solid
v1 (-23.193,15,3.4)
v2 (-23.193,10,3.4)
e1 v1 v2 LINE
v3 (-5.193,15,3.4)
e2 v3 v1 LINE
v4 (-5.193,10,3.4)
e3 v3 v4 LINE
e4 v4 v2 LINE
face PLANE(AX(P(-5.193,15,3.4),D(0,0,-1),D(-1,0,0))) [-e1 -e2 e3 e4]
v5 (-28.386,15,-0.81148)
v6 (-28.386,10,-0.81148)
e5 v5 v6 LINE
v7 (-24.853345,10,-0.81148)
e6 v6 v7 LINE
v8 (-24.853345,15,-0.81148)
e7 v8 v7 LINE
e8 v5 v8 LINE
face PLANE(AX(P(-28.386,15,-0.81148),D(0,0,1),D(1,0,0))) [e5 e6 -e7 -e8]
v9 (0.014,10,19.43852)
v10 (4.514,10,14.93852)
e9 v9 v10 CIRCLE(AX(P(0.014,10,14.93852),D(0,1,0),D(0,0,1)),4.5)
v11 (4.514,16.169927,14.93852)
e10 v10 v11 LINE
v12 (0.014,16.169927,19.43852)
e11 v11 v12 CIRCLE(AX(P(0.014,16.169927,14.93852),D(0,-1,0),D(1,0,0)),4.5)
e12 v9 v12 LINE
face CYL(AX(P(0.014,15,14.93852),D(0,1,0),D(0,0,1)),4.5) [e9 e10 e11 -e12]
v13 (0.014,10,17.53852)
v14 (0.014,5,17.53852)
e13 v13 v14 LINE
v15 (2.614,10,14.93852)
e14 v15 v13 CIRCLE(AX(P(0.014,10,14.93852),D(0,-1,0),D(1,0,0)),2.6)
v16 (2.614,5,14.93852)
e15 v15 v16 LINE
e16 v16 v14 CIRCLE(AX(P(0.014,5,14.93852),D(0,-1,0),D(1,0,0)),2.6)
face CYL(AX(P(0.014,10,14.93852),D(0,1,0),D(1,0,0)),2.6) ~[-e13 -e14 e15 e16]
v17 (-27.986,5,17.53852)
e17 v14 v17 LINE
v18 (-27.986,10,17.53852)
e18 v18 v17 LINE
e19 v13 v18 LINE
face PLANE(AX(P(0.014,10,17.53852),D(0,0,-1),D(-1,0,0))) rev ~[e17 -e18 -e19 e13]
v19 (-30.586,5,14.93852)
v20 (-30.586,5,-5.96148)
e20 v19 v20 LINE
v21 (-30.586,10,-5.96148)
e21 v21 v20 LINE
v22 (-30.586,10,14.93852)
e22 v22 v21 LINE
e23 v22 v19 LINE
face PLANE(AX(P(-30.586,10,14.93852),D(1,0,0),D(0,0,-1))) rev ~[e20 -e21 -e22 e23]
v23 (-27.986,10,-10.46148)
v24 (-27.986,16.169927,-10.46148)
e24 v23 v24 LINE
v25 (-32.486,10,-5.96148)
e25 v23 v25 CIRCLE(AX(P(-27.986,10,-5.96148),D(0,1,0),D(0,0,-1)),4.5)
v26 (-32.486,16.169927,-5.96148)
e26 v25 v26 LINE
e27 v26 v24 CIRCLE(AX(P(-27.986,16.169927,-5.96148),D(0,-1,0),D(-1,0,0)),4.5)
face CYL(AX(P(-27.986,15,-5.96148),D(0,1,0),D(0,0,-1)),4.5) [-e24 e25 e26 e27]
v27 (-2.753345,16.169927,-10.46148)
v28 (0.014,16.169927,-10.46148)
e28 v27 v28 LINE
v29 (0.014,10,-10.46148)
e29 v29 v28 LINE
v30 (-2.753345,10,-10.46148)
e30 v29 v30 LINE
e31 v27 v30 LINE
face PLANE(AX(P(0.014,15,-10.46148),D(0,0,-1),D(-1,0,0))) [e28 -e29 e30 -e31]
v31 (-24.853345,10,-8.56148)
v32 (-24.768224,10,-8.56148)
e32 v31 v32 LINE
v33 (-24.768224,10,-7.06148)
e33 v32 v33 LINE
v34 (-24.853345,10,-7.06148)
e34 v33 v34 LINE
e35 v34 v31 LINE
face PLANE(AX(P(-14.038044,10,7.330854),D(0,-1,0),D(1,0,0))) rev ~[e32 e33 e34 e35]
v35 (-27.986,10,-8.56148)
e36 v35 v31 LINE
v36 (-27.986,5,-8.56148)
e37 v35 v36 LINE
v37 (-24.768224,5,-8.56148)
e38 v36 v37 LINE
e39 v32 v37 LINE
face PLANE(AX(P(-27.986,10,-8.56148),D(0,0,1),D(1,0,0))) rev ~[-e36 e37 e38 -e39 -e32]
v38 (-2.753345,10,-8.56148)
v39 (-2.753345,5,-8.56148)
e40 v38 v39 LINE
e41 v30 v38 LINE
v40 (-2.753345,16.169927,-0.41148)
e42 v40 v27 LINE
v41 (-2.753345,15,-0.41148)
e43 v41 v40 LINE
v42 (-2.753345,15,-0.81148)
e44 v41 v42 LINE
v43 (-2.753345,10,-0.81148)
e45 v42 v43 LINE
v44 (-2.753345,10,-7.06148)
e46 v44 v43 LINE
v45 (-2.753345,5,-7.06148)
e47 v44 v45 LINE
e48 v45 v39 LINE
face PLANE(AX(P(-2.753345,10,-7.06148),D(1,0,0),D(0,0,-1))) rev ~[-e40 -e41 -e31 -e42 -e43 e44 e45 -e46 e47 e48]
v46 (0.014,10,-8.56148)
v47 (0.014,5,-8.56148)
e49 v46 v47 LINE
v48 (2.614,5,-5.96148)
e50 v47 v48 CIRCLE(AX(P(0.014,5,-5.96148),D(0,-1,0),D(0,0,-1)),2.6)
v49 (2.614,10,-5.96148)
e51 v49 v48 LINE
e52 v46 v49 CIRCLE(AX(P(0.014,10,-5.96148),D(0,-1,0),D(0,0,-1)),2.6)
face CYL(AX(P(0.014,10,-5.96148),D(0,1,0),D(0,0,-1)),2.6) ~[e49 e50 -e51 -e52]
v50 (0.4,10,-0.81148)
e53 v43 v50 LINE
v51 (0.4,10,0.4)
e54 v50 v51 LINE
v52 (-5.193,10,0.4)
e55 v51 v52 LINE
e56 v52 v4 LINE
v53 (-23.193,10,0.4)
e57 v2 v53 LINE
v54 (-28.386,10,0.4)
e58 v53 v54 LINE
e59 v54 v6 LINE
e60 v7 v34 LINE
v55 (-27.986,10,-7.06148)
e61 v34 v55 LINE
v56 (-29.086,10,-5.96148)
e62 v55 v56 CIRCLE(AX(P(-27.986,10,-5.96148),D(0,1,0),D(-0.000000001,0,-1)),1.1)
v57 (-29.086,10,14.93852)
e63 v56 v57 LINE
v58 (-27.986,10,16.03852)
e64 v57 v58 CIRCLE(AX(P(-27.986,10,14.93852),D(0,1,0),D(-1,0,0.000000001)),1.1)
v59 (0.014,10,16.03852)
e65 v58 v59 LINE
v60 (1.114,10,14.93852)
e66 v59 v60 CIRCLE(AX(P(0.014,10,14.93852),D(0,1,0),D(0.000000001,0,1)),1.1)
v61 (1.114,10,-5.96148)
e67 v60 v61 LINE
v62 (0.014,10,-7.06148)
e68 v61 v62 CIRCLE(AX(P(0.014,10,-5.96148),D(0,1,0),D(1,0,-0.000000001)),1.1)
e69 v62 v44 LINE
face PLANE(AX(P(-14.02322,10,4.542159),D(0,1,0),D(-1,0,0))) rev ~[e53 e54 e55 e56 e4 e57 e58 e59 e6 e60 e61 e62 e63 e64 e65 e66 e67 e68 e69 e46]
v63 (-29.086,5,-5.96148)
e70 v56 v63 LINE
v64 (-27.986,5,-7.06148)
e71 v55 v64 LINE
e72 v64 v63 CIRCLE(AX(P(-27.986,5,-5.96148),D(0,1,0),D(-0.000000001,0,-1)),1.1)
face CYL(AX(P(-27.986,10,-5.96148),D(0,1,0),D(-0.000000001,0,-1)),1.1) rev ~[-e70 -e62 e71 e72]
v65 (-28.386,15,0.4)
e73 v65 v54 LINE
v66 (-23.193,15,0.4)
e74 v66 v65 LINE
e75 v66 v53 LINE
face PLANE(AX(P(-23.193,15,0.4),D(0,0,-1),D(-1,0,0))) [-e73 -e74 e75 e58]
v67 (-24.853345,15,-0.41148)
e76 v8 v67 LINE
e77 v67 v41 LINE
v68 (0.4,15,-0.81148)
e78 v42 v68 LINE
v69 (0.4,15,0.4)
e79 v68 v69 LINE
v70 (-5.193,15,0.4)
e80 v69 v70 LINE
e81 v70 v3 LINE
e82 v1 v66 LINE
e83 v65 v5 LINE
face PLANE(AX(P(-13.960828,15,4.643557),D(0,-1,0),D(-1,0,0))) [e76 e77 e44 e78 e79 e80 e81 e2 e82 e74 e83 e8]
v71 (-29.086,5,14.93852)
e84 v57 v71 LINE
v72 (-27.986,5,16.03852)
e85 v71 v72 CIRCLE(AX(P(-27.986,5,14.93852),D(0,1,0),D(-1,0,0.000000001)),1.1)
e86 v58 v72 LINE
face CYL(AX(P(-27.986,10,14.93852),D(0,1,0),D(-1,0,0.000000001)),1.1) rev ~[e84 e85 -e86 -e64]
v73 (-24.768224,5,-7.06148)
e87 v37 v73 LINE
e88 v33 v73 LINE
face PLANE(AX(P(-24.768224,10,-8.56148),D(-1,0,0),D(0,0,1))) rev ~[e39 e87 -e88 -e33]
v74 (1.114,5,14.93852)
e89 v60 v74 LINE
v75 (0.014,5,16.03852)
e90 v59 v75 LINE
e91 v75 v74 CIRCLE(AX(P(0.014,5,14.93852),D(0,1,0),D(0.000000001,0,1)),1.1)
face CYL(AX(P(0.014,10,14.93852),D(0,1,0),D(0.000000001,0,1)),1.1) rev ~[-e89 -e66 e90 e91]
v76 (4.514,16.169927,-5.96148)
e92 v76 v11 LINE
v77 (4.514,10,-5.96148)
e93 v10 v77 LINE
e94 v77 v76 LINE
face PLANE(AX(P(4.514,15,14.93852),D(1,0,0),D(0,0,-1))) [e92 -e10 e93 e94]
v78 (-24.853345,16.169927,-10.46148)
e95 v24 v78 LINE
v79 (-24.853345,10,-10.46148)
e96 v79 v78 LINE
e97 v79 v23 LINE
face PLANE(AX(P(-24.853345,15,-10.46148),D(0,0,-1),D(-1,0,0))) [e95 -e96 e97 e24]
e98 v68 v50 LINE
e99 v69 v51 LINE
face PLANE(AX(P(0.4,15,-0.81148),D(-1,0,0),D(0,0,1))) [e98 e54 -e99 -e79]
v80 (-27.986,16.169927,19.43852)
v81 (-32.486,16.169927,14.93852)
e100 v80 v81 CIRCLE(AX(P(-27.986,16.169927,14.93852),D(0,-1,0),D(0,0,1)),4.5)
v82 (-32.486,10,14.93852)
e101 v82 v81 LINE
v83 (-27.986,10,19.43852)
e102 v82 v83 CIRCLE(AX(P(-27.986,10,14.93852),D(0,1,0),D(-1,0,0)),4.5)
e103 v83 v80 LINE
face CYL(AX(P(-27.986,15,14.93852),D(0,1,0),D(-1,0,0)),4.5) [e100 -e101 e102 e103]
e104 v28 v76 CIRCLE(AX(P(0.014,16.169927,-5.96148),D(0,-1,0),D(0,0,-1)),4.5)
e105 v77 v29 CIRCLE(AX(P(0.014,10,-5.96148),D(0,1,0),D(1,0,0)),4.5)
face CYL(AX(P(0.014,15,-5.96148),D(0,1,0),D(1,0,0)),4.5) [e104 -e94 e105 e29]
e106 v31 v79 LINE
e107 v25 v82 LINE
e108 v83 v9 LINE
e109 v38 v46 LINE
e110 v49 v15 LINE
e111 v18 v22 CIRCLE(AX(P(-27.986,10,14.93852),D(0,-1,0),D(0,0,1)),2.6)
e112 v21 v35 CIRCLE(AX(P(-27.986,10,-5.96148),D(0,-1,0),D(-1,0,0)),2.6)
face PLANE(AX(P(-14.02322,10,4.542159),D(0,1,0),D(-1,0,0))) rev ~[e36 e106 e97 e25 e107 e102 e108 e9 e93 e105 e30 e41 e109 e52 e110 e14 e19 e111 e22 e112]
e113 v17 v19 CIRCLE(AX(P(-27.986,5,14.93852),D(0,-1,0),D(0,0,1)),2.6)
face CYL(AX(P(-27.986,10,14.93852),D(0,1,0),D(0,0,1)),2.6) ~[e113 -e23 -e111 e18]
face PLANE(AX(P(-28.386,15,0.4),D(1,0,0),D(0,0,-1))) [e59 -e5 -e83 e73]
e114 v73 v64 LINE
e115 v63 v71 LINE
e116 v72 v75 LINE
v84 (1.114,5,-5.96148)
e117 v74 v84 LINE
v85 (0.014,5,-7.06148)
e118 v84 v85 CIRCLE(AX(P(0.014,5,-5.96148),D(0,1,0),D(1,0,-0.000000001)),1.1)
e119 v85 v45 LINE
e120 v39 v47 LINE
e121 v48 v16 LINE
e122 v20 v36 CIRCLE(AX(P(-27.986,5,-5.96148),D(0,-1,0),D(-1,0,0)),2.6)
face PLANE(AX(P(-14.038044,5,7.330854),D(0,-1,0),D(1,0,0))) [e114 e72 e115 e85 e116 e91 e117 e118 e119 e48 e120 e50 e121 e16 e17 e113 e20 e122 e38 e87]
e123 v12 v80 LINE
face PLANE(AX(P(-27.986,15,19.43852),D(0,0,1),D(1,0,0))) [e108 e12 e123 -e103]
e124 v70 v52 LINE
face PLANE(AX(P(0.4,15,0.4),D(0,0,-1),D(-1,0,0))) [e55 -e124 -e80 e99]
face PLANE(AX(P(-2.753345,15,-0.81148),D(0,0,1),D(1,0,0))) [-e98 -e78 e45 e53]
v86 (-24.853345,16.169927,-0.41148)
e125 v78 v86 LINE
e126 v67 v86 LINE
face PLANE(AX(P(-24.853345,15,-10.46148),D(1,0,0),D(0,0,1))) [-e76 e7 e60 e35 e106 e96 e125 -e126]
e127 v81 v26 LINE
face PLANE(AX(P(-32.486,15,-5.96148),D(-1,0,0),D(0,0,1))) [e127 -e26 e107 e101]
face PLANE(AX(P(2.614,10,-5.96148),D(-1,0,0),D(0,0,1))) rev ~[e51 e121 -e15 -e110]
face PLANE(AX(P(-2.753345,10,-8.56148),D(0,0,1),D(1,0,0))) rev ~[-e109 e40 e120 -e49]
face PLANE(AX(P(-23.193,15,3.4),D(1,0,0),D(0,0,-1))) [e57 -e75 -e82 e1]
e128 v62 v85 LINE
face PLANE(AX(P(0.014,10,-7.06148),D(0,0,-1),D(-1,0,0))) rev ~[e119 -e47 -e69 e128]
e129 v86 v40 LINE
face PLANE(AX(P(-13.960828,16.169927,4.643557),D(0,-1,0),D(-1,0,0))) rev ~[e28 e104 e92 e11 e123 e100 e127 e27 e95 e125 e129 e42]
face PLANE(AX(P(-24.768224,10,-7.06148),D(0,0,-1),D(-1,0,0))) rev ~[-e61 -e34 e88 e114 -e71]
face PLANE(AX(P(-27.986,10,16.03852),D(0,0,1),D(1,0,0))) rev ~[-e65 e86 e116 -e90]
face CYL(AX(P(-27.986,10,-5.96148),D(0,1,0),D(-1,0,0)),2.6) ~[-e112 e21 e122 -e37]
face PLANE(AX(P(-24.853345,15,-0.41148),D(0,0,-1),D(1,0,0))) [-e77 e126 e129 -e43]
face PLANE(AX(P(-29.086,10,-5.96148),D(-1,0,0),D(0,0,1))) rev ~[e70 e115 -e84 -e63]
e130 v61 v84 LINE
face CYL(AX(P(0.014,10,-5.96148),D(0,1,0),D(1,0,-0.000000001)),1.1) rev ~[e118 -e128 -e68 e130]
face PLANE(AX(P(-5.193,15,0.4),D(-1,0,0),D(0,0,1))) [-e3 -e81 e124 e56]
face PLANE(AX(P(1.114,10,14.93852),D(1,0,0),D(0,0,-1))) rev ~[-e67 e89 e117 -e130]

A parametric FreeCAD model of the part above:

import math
import FreeCAD as App
import Part
import Sketcher

doc = App.newDocument("Part")
body = doc.addObject("PartDesign::Body", "Body")

sketch1 = body.newObject("Sketcher::SketchObject", "Sketch")
sketch1.AttachmentSupport = (doc.getObject("XZ_Plane"), [""])
sketch1.MapMode = "FlatFace"
sketch1.AttachmentOffset = App.Placement(App.Vector(0, 0, -15), App.Rotation())
sketch1.addGeometry([
    Part.LineSegment(App.Vector(-24.9, -0.4, 0), App.Vector(-24.9, -10.5, 0)),
    Part.LineSegment(App.Vector(-24.9, -10.5, 0), App.Vector(-28, -10.5, 0)),
    Part.ArcOfCircle(Part.Circle(App.Vector(-28, -6, 0), App.Vector(0, 0, 1), 4.5), math.radians(-180), math.radians(-90)),
    Part.LineSegment(App.Vector(-32.5, -6, 0), App.Vector(-32.5, 14.9, 0)),
    Part.ArcOfCircle(Part.Circle(App.Vector(-28, 14.9, 0), App.Vector(0, 0, 1), 4.5), math.radians(90), math.radians(180)),
    Part.LineSegment(App.Vector(-28, 19.4, 0), App.Vector(0, 19.4, 0)),
    Part.ArcOfCircle(Part.Circle(App.Vector(0, 14.9, 0), App.Vector(0, 0, 1), 4.5), math.radians(0), math.radians(90)),
    Part.LineSegment(App.Vector(4.5, 14.9, 0), App.Vector(4.5, -6, 0)),
    Part.ArcOfCircle(Part.Circle(App.Vector(0, -6, 0), App.Vector(0, 0, 1), 4.5), math.radians(-90), math.radians(0)),
    Part.LineSegment(App.Vector(0, -10.5, 0), App.Vector(-2.8, -10.5, 0)),
    Part.LineSegment(App.Vector(-2.8, -10.5, 0), App.Vector(-2.8, -0.4, 0)),
    Part.LineSegment(App.Vector(-2.8, -0.4, 0), App.Vector(-24.9, -0.4, 0)),
], False)
sketch1.addConstraint([
    Sketcher.Constraint("Coincident", 0, 2, 1, 1),
    Sketcher.Constraint("Tangent", 1, 2, 2, 2),
    Sketcher.Constraint("Tangent", 2, 1, 3, 1),
    Sketcher.Constraint("Tangent", 3, 2, 4, 2),
    Sketcher.Constraint("Tangent", 4, 1, 5, 1),
    Sketcher.Constraint("Tangent", 5, 2, 6, 2),
    Sketcher.Constraint("Tangent", 6, 1, 7, 1),
    Sketcher.Constraint("Tangent", 7, 2, 8, 2),
    Sketcher.Constraint("Tangent", 8, 1, 9, 1),
    Sketcher.Constraint("Coincident", 9, 2, 10, 1),
    Sketcher.Constraint("Coincident", 10, 2, 11, 1),
    Sketcher.Constraint("Coincident", 11, 2, 0, 1),
    Sketcher.Constraint("Vertical", 0),
    Sketcher.Constraint("Horizontal", 1),
    Sketcher.Constraint("Vertical", 3),
    Sketcher.Constraint("Horizontal", 5),
    Sketcher.Constraint("Vertical", 7),
    Sketcher.Constraint("Horizontal", 9),
    Sketcher.Constraint("Vertical", 10),
    Sketcher.Constraint("Horizontal", 11),
    Sketcher.Constraint("Equal", 2, 4),
    Sketcher.Constraint("Equal", 4, 6),
    Sketcher.Constraint("Equal", 6, 8),
    Sketcher.Constraint("Horizontal", 2, 3, 8, 3),
    Sketcher.Constraint("Radius", 2, 4.5),
    Sketcher.Constraint("DistanceX", 5, 1, 5, 2, 28.0),
    Sketcher.Constraint("DistanceX", 11, 2, 11, 1, 22.1),
    Sketcher.Constraint("DistanceY", 3, 1, 3, 2, 20.9),
    Sketcher.Constraint("DistanceY", 0, 2, 0, 1, 10.05),
    Sketcher.Constraint("DistanceX", 2, 3, -1, 1, 27.986),
    Sketcher.Constraint("DistanceX", 1, 2, 1, 1, 3.132655),
    Sketcher.Constraint("DistanceY", 2, 3, -1, 1, 5.96148),
])
pad1 = body.newObject("PartDesign::Pad", "Pad")
pad1.Profile = sketch1
pad1.Length = 1.169927
pad1.Reversed = True

sketch2 = body.newObject("Sketcher::SketchObject", "Sketch001")
sketch2.AttachmentSupport = (doc.getObject("XZ_Plane"), [""])
sketch2.MapMode = "FlatFace"
sketch2.AttachmentOffset = App.Placement(App.Vector(0, 0, -15), App.Rotation())
sketch2.addGeometry([
    Part.LineSegment(App.Vector(-28.4, 0.4, 0), App.Vector(-23.2, 0.4, 0)),
    Part.LineSegment(App.Vector(-23.2, 0.4, 0), App.Vector(-23.2, 3.4, 0)),
    Part.LineSegment(App.Vector(-23.2, 3.4, 0), App.Vector(-5.2, 3.4, 0)),
    Part.LineSegment(App.Vector(-5.2, 3.4, 0), App.Vector(-5.2, 0.4, 0)),
    Part.LineSegment(App.Vector(-5.2, 0.4, 0), App.Vector(0.4, 0.4, 0)),
    Part.LineSegment(App.Vector(0.4, 0.4, 0), App.Vector(0.4, -0.8, 0)),
    Part.LineSegment(App.Vector(0.4, -0.8, 0), App.Vector(-2.8, -0.8, 0)),
    Part.LineSegment(App.Vector(-2.8, -0.8, 0), App.Vector(-2.8, -10.5, 0)),
    Part.LineSegment(App.Vector(-2.8, -10.5, 0), App.Vector(0, -10.5, 0)),
    Part.ArcOfCircle(Part.Circle(App.Vector(0, -6, 0), App.Vector(0, 0, 1), 4.5), math.radians(-90), math.radians(0)),
    Part.LineSegment(App.Vector(4.5, -6, 0), App.Vector(4.5, 14.9, 0)),
    Part.ArcOfCircle(Part.Circle(App.Vector(0, 14.9, 0), App.Vector(0, 0, 1), 4.5), math.radians(0), math.radians(90)),
    Part.LineSegment(App.Vector(0, 19.4, 0), App.Vector(-28, 19.4, 0)),
    Part.ArcOfCircle(Part.Circle(App.Vector(-28, 14.9, 0), App.Vector(0, 0, 1), 4.5), math.radians(90), math.radians(180)),
    Part.LineSegment(App.Vector(-32.5, 14.9, 0), App.Vector(-32.5, -6, 0)),
    Part.ArcOfCircle(Part.Circle(App.Vector(-28, -6, 0), App.Vector(0, 0, 1), 4.5), math.radians(-180), math.radians(-90)),
    Part.LineSegment(App.Vector(-28, -10.5, 0), App.Vector(-24.9, -10.5, 0)),
    Part.LineSegment(App.Vector(-24.9, -10.5, 0), App.Vector(-24.9, -0.8, 0)),
    Part.LineSegment(App.Vector(-24.9, -0.8, 0), App.Vector(-28.4, -0.8, 0)),
    Part.LineSegment(App.Vector(-28.4, -0.8, 0), App.Vector(-28.4, 0.4, 0)),
], False)
sketch2.addConstraint([
    Sketcher.Constraint("Coincident", 0, 2, 1, 1),
    Sketcher.Constraint("Coincident", 1, 2, 2, 1),
    Sketcher.Constraint("Coincident", 2, 2, 3, 1),
    Sketcher.Constraint("Coincident", 3, 2, 4, 1),
    Sketcher.Constraint("Coincident", 4, 2, 5, 1),
    Sketcher.Constraint("Coincident", 5, 2, 6, 1),
    Sketcher.Constraint("Coincident", 6, 2, 7, 1),
    Sketcher.Constraint("Coincident", 7, 2, 8, 1),
    Sketcher.Constraint("Tangent", 8, 2, 9, 1),
    Sketcher.Constraint("Tangent", 9, 2, 10, 1),
    Sketcher.Constraint("Tangent", 10, 2, 11, 1),
    Sketcher.Constraint("Tangent", 11, 2, 12, 1),
    Sketcher.Constraint("Tangent", 12, 2, 13, 1),
    Sketcher.Constraint("Tangent", 13, 2, 14, 1),
    Sketcher.Constraint("Tangent", 14, 2, 15, 1),
    Sketcher.Constraint("Tangent", 15, 2, 16, 1),
    Sketcher.Constraint("Coincident", 16, 2, 17, 1),
    Sketcher.Constraint("Coincident", 17, 2, 18, 1),
    Sketcher.Constraint("Coincident", 18, 2, 19, 1),
    Sketcher.Constraint("Coincident", 19, 2, 0, 1),
    Sketcher.Constraint("Horizontal", 0),
    Sketcher.Constraint("Vertical", 1),
    Sketcher.Constraint("Horizontal", 2),
    Sketcher.Constraint("Vertical", 3),
    Sketcher.Constraint("Horizontal", 4),
    Sketcher.Constraint("Vertical", 5),
    Sketcher.Constraint("Horizontal", 6),
    Sketcher.Constraint("Vertical", 7),
    Sketcher.Constraint("Horizontal", 8),
    Sketcher.Constraint("Vertical", 10),
    Sketcher.Constraint("Horizontal", 12),
    Sketcher.Constraint("Vertical", 14),
    Sketcher.Constraint("Horizontal", 16),
    Sketcher.Constraint("Vertical", 17),
    Sketcher.Constraint("Horizontal", 18),
    Sketcher.Constraint("Vertical", 19),
    Sketcher.Constraint("Equal", 9, 11),
    Sketcher.Constraint("Equal", 11, 13),
    Sketcher.Constraint("Equal", 13, 15),
    Sketcher.Constraint("Horizontal", 9, 3, 15, 3),
    Sketcher.Constraint("Horizontal", 0, 2, 3, 2),
    Sketcher.Constraint("Horizontal", 6, 2, 17, 2),
    Sketcher.Constraint("Radius", 9, 4.5),
    Sketcher.Constraint("DistanceX", 2, 1, 2, 2, 18.0),
    Sketcher.Constraint("DistanceX", 12, 2, 12, 1, 28.0),
    Sketcher.Constraint("DistanceY", 1, 1, 1, 2, 3.0),
    Sketcher.Constraint("DistanceY", 10, 1, 10, 2, 20.9),
    Sketcher.Constraint("DistanceY", 7, 2, 7, 1, 9.65),
    Sketcher.Constraint("DistanceY", -1, 1, 0, 2, 0.4),
    Sketcher.Constraint("DistanceX", -1, 1, 4, 2, 0.4),
    Sketcher.Constraint("DistanceX", 18, 2, 15, 3, 0.4),
    Sketcher.Constraint("DistanceX", 0, 1, 0, 2, 5.193),
    Sketcher.Constraint("DistanceX", 4, 1, 4, 2, 5.593),
    Sketcher.Constraint("DistanceY", 5, 2, 5, 1, 1.21148),
    Sketcher.Constraint("DistanceX", 6, 2, 6, 1, 3.153345),
    Sketcher.Constraint("DistanceX", 16, 1, 16, 2, 3.132655),
])
pad2 = body.newObject("PartDesign::Pad", "Pad001")
pad2.Profile = sketch2
pad2.Length = 5

sketch3 = body.newObject("Sketcher::SketchObject", "Sketch002")
sketch3.AttachmentSupport = (doc.getObject("XZ_Plane"), [""])
sketch3.MapMode = "FlatFace"
sketch3.AttachmentOffset = App.Placement(App.Vector(0, 0, -10), App.Rotation())
sketch3.addGeometry([
    Part.LineSegment(App.Vector(-2.8, -8.6, 0), App.Vector(0, -8.6, 0)),
    Part.ArcOfCircle(Part.Circle(App.Vector(0, -6, 0), App.Vector(0, 0, 1), 2.6), math.radians(-90), math.radians(0)),
    Part.LineSegment(App.Vector(2.6, -6, 0), App.Vector(2.6, 14.9, 0)),
    Part.ArcOfCircle(Part.Circle(App.Vector(0, 14.9, 0), App.Vector(0, 0, 1), 2.6), math.radians(0), math.radians(90)),
    Part.LineSegment(App.Vector(0, 17.5, 0), App.Vector(-28, 17.5, 0)),
    Part.ArcOfCircle(Part.Circle(App.Vector(-28, 14.9, 0), App.Vector(0, 0, 1), 2.6), math.radians(90), math.radians(180)),
    Part.LineSegment(App.Vector(-30.6, 14.9, 0), App.Vector(-30.6, -6, 0)),
    Part.ArcOfCircle(Part.Circle(App.Vector(-28, -6, 0), App.Vector(0, 0, 1), 2.6), math.radians(180), math.radians(270)),
    Part.LineSegment(App.Vector(-28, -8.6, 0), App.Vector(-24.8, -8.6, 0)),
    Part.LineSegment(App.Vector(-24.8, -8.6, 0), App.Vector(-24.8, -7.1, 0)),
    Part.LineSegment(App.Vector(-24.8, -7.1, 0), App.Vector(-28, -7.1, 0)),
    Part.ArcOfCircle(Part.Circle(App.Vector(-28, -6, 0), App.Vector(0, 0, 1), 1.1), math.radians(-180), math.radians(-90)),
    Part.LineSegment(App.Vector(-29.1, -6, 0), App.Vector(-29.1, 14.9, 0)),
    Part.ArcOfCircle(Part.Circle(App.Vector(-28, 14.9, 0), App.Vector(0, 0, 1), 1.1), math.radians(90), math.radians(180)),
    Part.LineSegment(App.Vector(-28, 16, 0), App.Vector(0, 16, 0)),
    Part.ArcOfCircle(Part.Circle(App.Vector(0, 14.9, 0), App.Vector(0, 0, 1), 1.1), math.radians(0), math.radians(90)),
    Part.LineSegment(App.Vector(1.1, 14.9, 0), App.Vector(1.1, -6, 0)),
    Part.ArcOfCircle(Part.Circle(App.Vector(0, -6, 0), App.Vector(0, 0, 1), 1.1), math.radians(-90), math.radians(0)),
    Part.LineSegment(App.Vector(0, -7.1, 0), App.Vector(-2.8, -7.1, 0)),
    Part.LineSegment(App.Vector(-2.8, -7.1, 0), App.Vector(-2.8, -8.6, 0)),
], False)
sketch3.addConstraint([
    Sketcher.Constraint("Tangent", 0, 2, 1, 1),
    Sketcher.Constraint("Tangent", 1, 2, 2, 1),
    Sketcher.Constraint("Tangent", 2, 2, 3, 1),
    Sketcher.Constraint("Tangent", 3, 2, 4, 1),
    Sketcher.Constraint("Tangent", 4, 2, 5, 1),
    Sketcher.Constraint("Tangent", 5, 2, 6, 1),
    Sketcher.Constraint("Tangent", 6, 2, 7, 1),
    Sketcher.Constraint("Tangent", 7, 2, 8, 1),
    Sketcher.Constraint("Coincident", 8, 2, 9, 1),
    Sketcher.Constraint("Coincident", 9, 2, 10, 1),
    Sketcher.Constraint("Tangent", 10, 2, 11, 2),
    Sketcher.Constraint("Tangent", 11, 1, 12, 1),
    Sketcher.Constraint("Tangent", 12, 2, 13, 2),
    Sketcher.Constraint("Tangent", 13, 1, 14, 1),
    Sketcher.Constraint("Tangent", 14, 2, 15, 2),
    Sketcher.Constraint("Tangent", 15, 1, 16, 1),
    Sketcher.Constraint("Tangent", 16, 2, 17, 2),
    Sketcher.Constraint("Tangent", 17, 1, 18, 1),
    Sketcher.Constraint("Coincident", 18, 2, 19, 1),
    Sketcher.Constraint("Coincident", 19, 2, 0, 1),
    Sketcher.Constraint("Horizontal", 0),
    Sketcher.Constraint("Vertical", 2),
    Sketcher.Constraint("Horizontal", 4),
    Sketcher.Constraint("Vertical", 6),
    Sketcher.Constraint("Horizontal", 8),
    Sketcher.Constraint("Vertical", 9),
    Sketcher.Constraint("Horizontal", 10),
    Sketcher.Constraint("Vertical", 12),
    Sketcher.Constraint("Horizontal", 14),
    Sketcher.Constraint("Vertical", 16),
    Sketcher.Constraint("Horizontal", 18),
    Sketcher.Constraint("Vertical", 19),
    Sketcher.Constraint("Coincident", 11, 3, 7, 3),
    Sketcher.Constraint("Coincident", 13, 3, 5, 3),
    Sketcher.Constraint("Coincident", 15, 3, 3, 3),
    Sketcher.Constraint("Coincident", 17, 3, 1, 3),
    Sketcher.Constraint("Equal", 1, 3),
    Sketcher.Constraint("Equal", 3, 5),
    Sketcher.Constraint("Equal", 5, 7),
    Sketcher.Constraint("Horizontal", 1, 3, 7, 3),
    Sketcher.Constraint("Radius", 1, 2.6),
    Sketcher.Constraint("Radius", 11, 1.1),
    Sketcher.Constraint("DistanceX", 4, 2, 4, 1, 28.0),
    Sketcher.Constraint("DistanceY", 2, 1, 2, 2, 20.9),
    Sketcher.Constraint("DistanceX", -1, 1, 1, 3, 0.014),
    Sketcher.Constraint("DistanceX", 0, 1, 0, 2, 2.767345),
    Sketcher.Constraint("DistanceX", 8, 1, 8, 2, 3.217776),
    Sketcher.Constraint("DistanceY", 1, 3, -1, 1, 5.96148),
])
pad3 = body.newObject("PartDesign::Pad", "Pad002")
pad3.Profile = sketch3
pad3.Length = 5

doc.recompute()
